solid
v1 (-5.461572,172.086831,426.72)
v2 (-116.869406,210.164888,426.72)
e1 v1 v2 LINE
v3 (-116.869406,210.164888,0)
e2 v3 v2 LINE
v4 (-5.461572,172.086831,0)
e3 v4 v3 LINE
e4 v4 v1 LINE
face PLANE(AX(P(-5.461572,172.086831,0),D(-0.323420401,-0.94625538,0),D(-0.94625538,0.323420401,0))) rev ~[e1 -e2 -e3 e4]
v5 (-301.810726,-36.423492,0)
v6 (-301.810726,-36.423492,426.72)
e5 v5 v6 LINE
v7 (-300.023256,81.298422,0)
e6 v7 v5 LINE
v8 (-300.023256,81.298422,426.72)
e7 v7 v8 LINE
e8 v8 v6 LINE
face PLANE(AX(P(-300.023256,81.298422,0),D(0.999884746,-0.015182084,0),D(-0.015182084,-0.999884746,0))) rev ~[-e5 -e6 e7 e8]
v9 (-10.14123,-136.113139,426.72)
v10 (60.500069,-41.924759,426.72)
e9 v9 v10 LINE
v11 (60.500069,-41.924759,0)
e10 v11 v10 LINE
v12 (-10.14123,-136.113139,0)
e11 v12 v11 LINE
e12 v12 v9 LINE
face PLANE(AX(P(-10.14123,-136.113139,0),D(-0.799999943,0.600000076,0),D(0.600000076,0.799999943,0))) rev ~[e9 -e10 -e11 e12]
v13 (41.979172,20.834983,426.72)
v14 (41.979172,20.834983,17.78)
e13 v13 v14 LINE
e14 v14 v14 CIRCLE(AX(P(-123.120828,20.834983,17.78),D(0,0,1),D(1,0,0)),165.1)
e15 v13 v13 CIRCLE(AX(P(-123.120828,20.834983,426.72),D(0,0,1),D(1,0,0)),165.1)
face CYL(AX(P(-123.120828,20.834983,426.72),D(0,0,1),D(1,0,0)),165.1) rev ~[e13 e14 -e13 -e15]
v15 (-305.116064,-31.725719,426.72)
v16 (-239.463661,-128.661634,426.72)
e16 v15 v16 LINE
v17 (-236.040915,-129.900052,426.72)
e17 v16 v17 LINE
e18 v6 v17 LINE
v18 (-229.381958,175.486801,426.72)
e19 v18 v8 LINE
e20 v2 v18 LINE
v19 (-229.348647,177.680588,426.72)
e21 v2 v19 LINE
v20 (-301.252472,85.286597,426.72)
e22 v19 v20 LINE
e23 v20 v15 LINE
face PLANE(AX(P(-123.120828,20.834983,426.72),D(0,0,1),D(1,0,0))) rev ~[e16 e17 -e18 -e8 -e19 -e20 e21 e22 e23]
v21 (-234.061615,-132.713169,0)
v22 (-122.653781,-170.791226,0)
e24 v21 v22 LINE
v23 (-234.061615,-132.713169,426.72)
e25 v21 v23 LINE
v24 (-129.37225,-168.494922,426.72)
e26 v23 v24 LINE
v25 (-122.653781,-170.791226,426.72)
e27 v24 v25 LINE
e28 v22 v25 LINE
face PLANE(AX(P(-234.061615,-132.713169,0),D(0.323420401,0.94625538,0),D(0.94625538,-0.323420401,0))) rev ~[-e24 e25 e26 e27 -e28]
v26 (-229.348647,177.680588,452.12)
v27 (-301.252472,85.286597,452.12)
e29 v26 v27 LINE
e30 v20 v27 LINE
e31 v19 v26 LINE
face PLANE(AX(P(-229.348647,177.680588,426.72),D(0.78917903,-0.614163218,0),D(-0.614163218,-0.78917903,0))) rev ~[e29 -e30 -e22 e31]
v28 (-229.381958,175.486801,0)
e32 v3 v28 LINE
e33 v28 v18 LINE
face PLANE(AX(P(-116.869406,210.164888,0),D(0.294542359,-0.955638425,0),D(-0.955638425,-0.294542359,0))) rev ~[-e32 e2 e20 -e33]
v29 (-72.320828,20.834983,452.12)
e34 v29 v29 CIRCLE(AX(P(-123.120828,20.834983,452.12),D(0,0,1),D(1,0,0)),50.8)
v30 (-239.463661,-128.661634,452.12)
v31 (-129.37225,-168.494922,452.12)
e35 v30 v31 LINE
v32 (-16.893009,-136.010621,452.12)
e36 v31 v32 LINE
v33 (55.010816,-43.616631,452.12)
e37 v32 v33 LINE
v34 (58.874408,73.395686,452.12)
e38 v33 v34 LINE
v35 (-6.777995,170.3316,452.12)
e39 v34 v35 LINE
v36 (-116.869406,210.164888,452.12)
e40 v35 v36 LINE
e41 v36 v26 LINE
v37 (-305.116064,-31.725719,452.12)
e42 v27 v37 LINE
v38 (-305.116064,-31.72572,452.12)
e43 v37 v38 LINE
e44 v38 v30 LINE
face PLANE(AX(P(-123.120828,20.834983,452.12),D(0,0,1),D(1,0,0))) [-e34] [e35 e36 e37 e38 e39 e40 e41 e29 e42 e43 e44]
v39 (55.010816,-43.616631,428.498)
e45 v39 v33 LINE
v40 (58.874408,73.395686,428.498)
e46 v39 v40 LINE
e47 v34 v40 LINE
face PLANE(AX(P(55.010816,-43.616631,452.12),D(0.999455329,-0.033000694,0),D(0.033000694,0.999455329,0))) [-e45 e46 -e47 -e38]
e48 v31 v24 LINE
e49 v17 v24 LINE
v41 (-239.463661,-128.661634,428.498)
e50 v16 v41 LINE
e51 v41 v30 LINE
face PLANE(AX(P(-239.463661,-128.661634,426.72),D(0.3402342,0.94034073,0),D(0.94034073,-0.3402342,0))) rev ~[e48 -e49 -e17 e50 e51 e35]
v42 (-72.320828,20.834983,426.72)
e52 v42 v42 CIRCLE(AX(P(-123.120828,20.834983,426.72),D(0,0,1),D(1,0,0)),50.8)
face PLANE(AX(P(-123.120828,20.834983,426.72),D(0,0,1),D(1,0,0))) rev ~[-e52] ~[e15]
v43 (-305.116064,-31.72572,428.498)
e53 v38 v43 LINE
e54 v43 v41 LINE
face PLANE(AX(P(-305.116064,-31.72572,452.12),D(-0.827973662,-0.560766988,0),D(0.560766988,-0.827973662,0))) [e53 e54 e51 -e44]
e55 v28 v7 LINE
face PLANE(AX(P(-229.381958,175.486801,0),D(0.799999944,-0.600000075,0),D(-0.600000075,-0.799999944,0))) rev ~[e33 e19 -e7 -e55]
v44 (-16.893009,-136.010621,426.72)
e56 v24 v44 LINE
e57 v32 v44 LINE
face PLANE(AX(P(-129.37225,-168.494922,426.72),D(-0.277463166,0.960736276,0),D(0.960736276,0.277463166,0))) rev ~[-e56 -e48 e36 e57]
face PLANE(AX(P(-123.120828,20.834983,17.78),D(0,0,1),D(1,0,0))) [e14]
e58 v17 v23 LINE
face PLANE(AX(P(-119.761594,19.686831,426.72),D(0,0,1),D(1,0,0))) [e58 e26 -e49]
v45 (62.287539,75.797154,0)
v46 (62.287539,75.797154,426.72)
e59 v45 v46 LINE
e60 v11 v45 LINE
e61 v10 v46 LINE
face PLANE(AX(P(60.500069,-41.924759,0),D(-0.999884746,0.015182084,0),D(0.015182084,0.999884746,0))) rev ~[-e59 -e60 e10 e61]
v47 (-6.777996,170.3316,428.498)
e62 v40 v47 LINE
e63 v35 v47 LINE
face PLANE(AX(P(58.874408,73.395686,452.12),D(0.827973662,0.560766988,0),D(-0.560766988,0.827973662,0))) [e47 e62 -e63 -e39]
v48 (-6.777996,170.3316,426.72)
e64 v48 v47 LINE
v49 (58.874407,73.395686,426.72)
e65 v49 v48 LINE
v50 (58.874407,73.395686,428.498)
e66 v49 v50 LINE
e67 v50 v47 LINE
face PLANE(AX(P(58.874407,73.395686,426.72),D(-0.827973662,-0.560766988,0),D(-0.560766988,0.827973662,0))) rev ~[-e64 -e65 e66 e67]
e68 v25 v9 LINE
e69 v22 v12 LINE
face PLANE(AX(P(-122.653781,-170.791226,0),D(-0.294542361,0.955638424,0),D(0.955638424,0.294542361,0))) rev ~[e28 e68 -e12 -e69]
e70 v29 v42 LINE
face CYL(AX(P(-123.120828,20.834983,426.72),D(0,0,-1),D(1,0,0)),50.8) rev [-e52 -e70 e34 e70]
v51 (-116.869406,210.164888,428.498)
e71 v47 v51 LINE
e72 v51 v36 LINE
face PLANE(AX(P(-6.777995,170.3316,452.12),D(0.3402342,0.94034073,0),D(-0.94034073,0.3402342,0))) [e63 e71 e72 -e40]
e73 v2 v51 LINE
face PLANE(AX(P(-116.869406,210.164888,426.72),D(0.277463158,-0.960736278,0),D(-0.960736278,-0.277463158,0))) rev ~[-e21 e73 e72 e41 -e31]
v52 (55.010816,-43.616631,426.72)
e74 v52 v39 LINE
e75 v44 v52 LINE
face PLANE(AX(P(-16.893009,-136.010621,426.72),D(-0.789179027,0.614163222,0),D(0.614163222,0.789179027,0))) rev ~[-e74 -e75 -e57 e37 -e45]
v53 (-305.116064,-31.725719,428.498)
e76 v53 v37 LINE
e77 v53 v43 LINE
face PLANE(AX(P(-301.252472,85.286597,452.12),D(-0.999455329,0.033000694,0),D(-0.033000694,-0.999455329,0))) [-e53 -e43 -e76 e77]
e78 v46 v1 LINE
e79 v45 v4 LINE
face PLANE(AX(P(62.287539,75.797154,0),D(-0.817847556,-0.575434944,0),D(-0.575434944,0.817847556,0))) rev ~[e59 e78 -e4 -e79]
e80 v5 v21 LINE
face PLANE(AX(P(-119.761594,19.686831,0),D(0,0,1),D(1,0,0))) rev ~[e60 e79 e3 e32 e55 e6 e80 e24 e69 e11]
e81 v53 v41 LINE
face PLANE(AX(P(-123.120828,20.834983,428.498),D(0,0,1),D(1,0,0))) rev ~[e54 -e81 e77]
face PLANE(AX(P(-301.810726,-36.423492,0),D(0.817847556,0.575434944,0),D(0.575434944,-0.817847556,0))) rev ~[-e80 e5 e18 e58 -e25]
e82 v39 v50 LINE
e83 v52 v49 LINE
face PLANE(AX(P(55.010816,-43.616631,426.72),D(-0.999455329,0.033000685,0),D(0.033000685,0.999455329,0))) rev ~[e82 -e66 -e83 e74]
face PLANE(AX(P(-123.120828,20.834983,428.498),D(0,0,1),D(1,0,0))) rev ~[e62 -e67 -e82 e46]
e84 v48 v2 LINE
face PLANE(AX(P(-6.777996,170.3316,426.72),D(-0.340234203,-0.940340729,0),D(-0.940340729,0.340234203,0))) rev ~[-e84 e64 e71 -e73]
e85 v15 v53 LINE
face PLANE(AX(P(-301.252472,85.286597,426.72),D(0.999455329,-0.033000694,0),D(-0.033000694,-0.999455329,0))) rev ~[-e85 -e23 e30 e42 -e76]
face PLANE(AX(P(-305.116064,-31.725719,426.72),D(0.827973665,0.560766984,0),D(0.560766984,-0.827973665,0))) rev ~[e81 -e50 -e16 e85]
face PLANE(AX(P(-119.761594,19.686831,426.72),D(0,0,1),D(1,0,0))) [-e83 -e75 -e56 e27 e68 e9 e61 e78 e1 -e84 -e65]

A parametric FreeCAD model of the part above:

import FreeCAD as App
import Part
import Sketcher

V = App.Vector
Q = App.Units.Quantity


def add_polygon(sketch, points):
    """Adds a closed chain of lines whose ends are joined by coincident constraints."""
    first, n = sketch.GeometryCount, len(points)
    for a, b in zip(points, points[1:] + points[:1]):
        sketch.addGeometry(Part.LineSegment(App.Vector(*a, 0), App.Vector(*b, 0)), False)
    for i in range(n):
        sketch.addConstraint(Sketcher.Constraint("Coincident", first + i, 2, first + (i + 1) % n, 1))

doc = App.newDocument("Part")
body = doc.addObject("PartDesign::Body", "Body")

sketch1 = body.newObject("Sketcher::SketchObject", "Sketch")
sketch1.AttachmentSupport = (doc.getObject("XY_Plane"), [""])
sketch1.MapMode = "FlatFace"
add_polygon(sketch1, [(-10, -136), (61, -42), (62, 76), (-5, 172), (-117, 210), (-229, 175), (-300, 81), (-302, -36), (-234, -133), (-123, -171)])
sketch1.addConstraint([
    Sketcher.Constraint("Parallel", 0, 5),
    Sketcher.Constraint("Parallel", 1, 6),
    Sketcher.Constraint("Parallel", 2, 7),
    Sketcher.Constraint("Parallel", 3, 8),
    Sketcher.Constraint("Parallel", 4, 9),
    Sketcher.Constraint("Equal", 0, 1),
    Sketcher.Constraint("Equal", 1, 2),
    Sketcher.Constraint("Equal", 2, 3),
    Sketcher.Constraint("Equal", 3, 4),
    Sketcher.Constraint("Equal", 4, 5),
    Sketcher.Constraint("Equal", 5, 6),
    Sketcher.Constraint("Equal", 6, 7),
    Sketcher.Constraint("DistanceY", -1, 1, 4, 2, 175.486801),
    Sketcher.Constraint("DistanceX", 5, 2, 4, 2, 70.641298),
    Sketcher.Constraint("DistanceX", -1, 1, 0, 2, 60.500069),
    Sketcher.Constraint("DistanceY", 0, 2, -1, 1, 41.924759),
    Sketcher.Constraint("DistanceX", -1, 1, 1, 2, 62.287539),
    Sketcher.Constraint("DistanceY", -1, 1, 2, 2, 172.086831),
    Sketcher.Constraint("DistanceX", 4, 2, -1, 1, 229.381958),
    Sketcher.Constraint("DistanceY", 7, 2, -1, 1, 132.713169),
])
pad1 = body.newObject("PartDesign::Pad", "Pad")
pad1.Profile = sketch1
pad1.Length = Q("16.8 in")

sketch2 = body.newObject("Sketcher::SketchObject", "Sketch001")
sketch2.AttachmentSupport = (doc.getObject("XY_Plane"), [""])
sketch2.MapMode = "FlatFace"
sketch2.AttachmentOffset = App.Placement(V(0, 0, 16.8 * 25.4), App.Rotation())
sketch2.addGeometry(Part.Circle(V(-123, 21, 0), V(0, 0, 1), 165), False)
sketch2.addConstraint([
    Sketcher.Constraint("Diameter", 0, Q("13 in")),
    Sketcher.Constraint("DistanceX", 0, 3, -1, 1, 123.120828),
    Sketcher.Constraint("DistanceY", -1, 1, 0, 3, 20.834983),
])
pocket1 = body.newObject("PartDesign::Pocket", "Pocket")
pocket1.Profile = sketch2
pocket1.Length = Q("16.1 in")

sketch3 = body.newObject("Sketcher::SketchObject", "Sketch002")
sketch3.AttachmentSupport = (doc.getObject("XY_Plane"), [""])
sketch3.MapMode = "FlatFace"
sketch3.AttachmentOffset = App.Placement(V(0, 0, 16.8 * 25.4), App.Rotation())
add_polygon(sketch3, [(-7, 170), (-117, 210), (-229, 178), (-301, 85), (-305, -32), (-239, -129), (-129, -168), (-17, -136), (55, -44), (59, 73)])
sketch3.addGeometry(Part.Circle(V(-123, 21, 0), V(0, 0, 1), 51), False)
sketch3.addConstraint([
    Sketcher.Constraint("Parallel", 0, 5),
    Sketcher.Constraint("Parallel", 1, 6),
    Sketcher.Constraint("Parallel", 2, 7),
    Sketcher.Constraint("Parallel", 3, 8),
    Sketcher.Constraint("Parallel", 4, 9),
    Sketcher.Constraint("Equal", 0, 1),
    Sketcher.Constraint("Equal", 1, 2),
    Sketcher.Constraint("Equal", 2, 3),
    Sketcher.Constraint("Equal", 3, 4),
    Sketcher.Constraint("Equal", 4, 5),
    Sketcher.Constraint("Equal", 5, 6),
    Sketcher.Constraint("Equal", 6, 7),
    Sketcher.Constraint("Diameter", 10, Q("4 in")),
    Sketcher.Constraint("DistanceY", -1, 1, 9, 2, 170.3316),
    Sketcher.Constraint("DistanceY", 1, 2, 0, 2, 32.4843),
    Sketcher.Constraint("DistanceY", 6, 2, 3, 2, 104.284902),
    Sketcher.Constraint("DistanceX", 10, 3, -1, 1, 123.120828),
    Sketcher.Constraint("DistanceY", -1, 1, 1, 2, 177.680588),
    Sketcher.Constraint("DistanceX", 2, 2, -1, 1, 301.252472),
    Sketcher.Constraint("DistanceY", 3, 2, -1, 1, 31.725719),
    Sketcher.Constraint("DistanceX", 4, 2, -1, 1, 239.463661),
    Sketcher.Constraint("DistanceX", 5, 2, -1, 1, 129.37225),
    Sketcher.Constraint("DistanceY", -1, 1, 10, 3, 20.834983),
])
pad2 = body.newObject("PartDesign::Pad", "Pad001")
pad2.Profile = sketch3
pad2.Length = Q("1 in")

sketch4 = body.newObject("Sketcher::SketchObject", "Sketch003")
sketch4.AttachmentSupport = (doc.getObject("XY_Plane"), [""])
sketch4.MapMode = "FlatFace"
sketch4.AttachmentOffset = App.Placement(V(0, 0, 17.8 * 25.4), App.Rotation())
add_polygon(sketch4, [(59, 73), (-7, 170), (-117, 210), (-229, 178), (-301, 85), (-305, -32), (-239, -129), (-129, -168), (-17, -136), (55, -44)])
sketch4.addGeometry(Part.Circle(V(-123, 21, 0), V(0, 0, 1), 51), False)
sketch4.addConstraint([
    Sketcher.Constraint("Parallel", 0, 5),
    Sketcher.Constraint("Parallel", 1, 6),
    Sketcher.Constraint("Parallel", 2, 7),
    Sketcher.Constraint("Parallel", 3, 8),
    Sketcher.Constraint("Parallel", 4, 9),
    Sketcher.Constraint("Equal", 0, 1),
    Sketcher.Constraint("Equal", 1, 2),
    Sketcher.Constraint("Equal", 2, 3),
    Sketcher.Constraint("Equal", 3, 4),
    Sketcher.Constraint("Equal", 4, 5),
    Sketcher.Constraint("Equal", 5, 6),
    Sketcher.Constraint("Equal", 6, 7),
    Sketcher.Constraint("Diameter", 10, Q("4 in")),
    Sketcher.Constraint("DistanceY", -1, 1, 0, 2, 170.3316),
    Sketcher.Constraint("DistanceY", 2, 2, 1, 2, 32.484301),
    Sketcher.Constraint("DistanceY", 6, 2, 4, 2, 136.769202),
    Sketcher.Constraint("DistanceX", 10, 3, -1, 1, 123.120828),
    Sketcher.Constraint("DistanceX", 3, 2, -1, 1, 301.252472),
    Sketcher.Constraint("DistanceY", 4, 2, -1, 1, 31.72572),
    Sketcher.Constraint("DistanceX", 5, 2, -1, 1, 239.463661),
    Sketcher.Constraint("DistanceX", 6, 2, -1, 1, 129.37225),
    Sketcher.Constraint("DistanceX", 7, 2, -1, 1, 16.893009),
    Sketcher.Constraint("DistanceY", -1, 1, 10, 3, 20.834983),
])
pad3 = body.newObject("PartDesign::Pad", "Pad002")
pad3.Profile = sketch4
pad3.Length = Q("0.93 in")
pad3.Reversed = True

doc.recompute()
